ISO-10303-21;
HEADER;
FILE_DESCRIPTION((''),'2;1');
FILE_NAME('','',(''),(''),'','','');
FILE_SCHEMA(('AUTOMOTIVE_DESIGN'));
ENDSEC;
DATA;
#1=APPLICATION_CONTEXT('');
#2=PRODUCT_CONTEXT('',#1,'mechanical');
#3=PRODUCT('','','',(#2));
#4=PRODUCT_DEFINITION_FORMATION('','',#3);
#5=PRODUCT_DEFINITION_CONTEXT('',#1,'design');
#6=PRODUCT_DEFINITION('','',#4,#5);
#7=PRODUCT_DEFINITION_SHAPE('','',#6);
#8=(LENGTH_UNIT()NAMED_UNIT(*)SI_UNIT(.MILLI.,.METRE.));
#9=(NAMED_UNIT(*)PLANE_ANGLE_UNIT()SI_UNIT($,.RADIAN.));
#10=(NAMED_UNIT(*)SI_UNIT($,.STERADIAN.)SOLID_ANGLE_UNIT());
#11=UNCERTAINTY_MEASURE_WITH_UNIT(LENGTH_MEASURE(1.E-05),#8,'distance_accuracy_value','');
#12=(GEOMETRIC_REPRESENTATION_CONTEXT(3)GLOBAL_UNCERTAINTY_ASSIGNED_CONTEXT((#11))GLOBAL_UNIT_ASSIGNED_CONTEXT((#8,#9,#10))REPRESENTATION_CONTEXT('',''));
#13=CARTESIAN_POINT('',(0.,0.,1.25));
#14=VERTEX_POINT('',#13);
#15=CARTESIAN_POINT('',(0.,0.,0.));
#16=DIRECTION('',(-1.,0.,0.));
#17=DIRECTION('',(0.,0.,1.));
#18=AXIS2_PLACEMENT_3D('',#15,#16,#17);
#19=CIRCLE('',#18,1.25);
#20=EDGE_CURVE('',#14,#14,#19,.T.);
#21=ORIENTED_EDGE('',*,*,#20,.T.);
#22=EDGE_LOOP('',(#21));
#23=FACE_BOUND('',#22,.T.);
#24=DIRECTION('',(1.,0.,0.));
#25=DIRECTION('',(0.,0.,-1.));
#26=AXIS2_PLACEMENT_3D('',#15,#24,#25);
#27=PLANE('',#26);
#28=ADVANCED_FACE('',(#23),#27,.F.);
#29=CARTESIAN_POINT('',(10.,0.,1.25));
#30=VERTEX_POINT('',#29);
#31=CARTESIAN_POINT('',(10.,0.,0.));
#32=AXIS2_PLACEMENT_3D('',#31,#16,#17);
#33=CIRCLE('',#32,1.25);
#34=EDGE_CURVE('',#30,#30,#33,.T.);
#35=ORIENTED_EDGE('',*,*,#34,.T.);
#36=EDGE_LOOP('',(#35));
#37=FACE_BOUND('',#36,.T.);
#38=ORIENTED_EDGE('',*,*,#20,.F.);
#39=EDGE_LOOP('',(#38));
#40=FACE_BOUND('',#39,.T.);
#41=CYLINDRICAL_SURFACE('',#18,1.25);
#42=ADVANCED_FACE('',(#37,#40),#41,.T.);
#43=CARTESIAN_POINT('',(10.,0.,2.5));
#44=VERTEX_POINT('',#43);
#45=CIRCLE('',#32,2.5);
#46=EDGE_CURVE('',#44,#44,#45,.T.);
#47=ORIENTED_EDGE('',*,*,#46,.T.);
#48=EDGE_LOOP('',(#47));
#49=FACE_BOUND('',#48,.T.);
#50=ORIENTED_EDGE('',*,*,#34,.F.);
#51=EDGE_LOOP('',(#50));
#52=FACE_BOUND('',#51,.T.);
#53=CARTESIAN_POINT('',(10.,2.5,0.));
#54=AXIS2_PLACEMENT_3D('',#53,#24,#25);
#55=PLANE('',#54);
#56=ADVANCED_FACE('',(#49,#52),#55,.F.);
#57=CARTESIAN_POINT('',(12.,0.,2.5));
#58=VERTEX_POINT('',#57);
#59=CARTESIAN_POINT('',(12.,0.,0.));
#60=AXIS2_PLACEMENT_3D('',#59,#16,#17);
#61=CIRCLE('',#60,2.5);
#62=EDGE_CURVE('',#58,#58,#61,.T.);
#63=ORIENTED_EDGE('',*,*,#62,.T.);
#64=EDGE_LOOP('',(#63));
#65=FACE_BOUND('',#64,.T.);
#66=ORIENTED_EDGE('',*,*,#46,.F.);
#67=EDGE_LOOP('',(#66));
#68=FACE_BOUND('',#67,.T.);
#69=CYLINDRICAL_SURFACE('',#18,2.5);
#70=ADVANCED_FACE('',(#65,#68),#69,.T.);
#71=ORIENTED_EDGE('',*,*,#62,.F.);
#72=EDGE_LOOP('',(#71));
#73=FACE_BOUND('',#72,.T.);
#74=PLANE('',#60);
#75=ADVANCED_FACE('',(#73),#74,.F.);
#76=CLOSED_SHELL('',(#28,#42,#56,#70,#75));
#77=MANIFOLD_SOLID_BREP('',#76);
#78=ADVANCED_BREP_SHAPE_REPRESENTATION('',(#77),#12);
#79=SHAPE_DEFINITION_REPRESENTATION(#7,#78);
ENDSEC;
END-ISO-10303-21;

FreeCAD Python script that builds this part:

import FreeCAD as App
import Part
import Sketcher

V = App.Vector
Q = App.Units.Quantity

doc = App.newDocument("Part")
params = doc.addObject("Spreadsheet::Sheet", "Params")
for row, (alias, value) in enumerate([
    ("sketch1_width", "2 mm"),
    ("sketch1_width2", "10 mm"),
    ("sketch1_height", "2.5 mm"),
    ("revolution_angle", "360 deg"),
], start=1):
    params.set(f"A{row}", alias)
    params.set(f"B{row}", "=" + value)
    params.setAlias(f"B{row}", alias)

body = doc.addObject("PartDesign::Body", "Body")

# Sketch on XY plane
sketch1 = body.newObject("Sketcher::SketchObject", "Sketch")
sketch1.AttachmentSupport = (doc.getObject("XY_Plane"), [""])
sketch1.MapMode = "FlatFace"
sketch1.addGeometry([
    Part.LineSegment(V(12, 2.5, 0), V(10, 2.5, 0)),  # 0
    Part.LineSegment(V(10, 2.5, 0), V(10, 1.2, 0)),  # 1
    Part.LineSegment(V(10, 1.2, 0), V(0, 1.2, 0)),  # 2
    Part.LineSegment(V(0, 1.2, 0), V(0, 0, 0)),  # 3
    Part.LineSegment(V(0, 0, 0), V(12, 0, 0)),  # 4
    Part.LineSegment(V(12, 0, 0), V(12, 2.5, 0)),  # 5
], False)
sketch1.addConstraint([
    Sketcher.Constraint("Coincident", 0, 2, 1, 1),
    Sketcher.Constraint("Coincident", 1, 2, 2, 1),
    Sketcher.Constraint("Coincident", 2, 2, 3, 1),
    Sketcher.Constraint("Coincident", 3, 2, 4, 1),
    Sketcher.Constraint("Coincident", 4, 2, 5, 1),
    Sketcher.Constraint("Coincident", 5, 2, 0, 1),
    Sketcher.Constraint("Horizontal", 0),
    Sketcher.Constraint("Vertical", 1),
    Sketcher.Constraint("Horizontal", 2),
    Sketcher.Constraint("Vertical", 3),
    Sketcher.Constraint("Horizontal", 4),
    Sketcher.Constraint("Vertical", 5),
    Sketcher.Constraint("Coincident", 3, 2, -1, 1),
    Sketcher.Constraint("Equal", 1, 3),
    Sketcher.Constraint("DistanceX", 0, 2, 0, 1, Q("2 mm")),
    Sketcher.Constraint("DistanceX", 2, 2, 2, 1, Q("10 mm")),
    Sketcher.Constraint("DistanceY", 5, 1, 5, 2, Q("2.5 mm")),
])
sketch1.setExpression("Constraints[14]", "Params.sketch1_width")
sketch1.setExpression("Constraints[15]", "Params.sketch1_width2")
sketch1.setExpression("Constraints[16]", "Params.sketch1_height")
revolution = body.newObject("PartDesign::Revolution", "Revolution")
revolution.Profile = sketch1
revolution.ReferenceAxis = (sketch1, ["H_Axis"])
revolution.setExpression("Angle", "Params.revolution_angle")

doc.recompute()
